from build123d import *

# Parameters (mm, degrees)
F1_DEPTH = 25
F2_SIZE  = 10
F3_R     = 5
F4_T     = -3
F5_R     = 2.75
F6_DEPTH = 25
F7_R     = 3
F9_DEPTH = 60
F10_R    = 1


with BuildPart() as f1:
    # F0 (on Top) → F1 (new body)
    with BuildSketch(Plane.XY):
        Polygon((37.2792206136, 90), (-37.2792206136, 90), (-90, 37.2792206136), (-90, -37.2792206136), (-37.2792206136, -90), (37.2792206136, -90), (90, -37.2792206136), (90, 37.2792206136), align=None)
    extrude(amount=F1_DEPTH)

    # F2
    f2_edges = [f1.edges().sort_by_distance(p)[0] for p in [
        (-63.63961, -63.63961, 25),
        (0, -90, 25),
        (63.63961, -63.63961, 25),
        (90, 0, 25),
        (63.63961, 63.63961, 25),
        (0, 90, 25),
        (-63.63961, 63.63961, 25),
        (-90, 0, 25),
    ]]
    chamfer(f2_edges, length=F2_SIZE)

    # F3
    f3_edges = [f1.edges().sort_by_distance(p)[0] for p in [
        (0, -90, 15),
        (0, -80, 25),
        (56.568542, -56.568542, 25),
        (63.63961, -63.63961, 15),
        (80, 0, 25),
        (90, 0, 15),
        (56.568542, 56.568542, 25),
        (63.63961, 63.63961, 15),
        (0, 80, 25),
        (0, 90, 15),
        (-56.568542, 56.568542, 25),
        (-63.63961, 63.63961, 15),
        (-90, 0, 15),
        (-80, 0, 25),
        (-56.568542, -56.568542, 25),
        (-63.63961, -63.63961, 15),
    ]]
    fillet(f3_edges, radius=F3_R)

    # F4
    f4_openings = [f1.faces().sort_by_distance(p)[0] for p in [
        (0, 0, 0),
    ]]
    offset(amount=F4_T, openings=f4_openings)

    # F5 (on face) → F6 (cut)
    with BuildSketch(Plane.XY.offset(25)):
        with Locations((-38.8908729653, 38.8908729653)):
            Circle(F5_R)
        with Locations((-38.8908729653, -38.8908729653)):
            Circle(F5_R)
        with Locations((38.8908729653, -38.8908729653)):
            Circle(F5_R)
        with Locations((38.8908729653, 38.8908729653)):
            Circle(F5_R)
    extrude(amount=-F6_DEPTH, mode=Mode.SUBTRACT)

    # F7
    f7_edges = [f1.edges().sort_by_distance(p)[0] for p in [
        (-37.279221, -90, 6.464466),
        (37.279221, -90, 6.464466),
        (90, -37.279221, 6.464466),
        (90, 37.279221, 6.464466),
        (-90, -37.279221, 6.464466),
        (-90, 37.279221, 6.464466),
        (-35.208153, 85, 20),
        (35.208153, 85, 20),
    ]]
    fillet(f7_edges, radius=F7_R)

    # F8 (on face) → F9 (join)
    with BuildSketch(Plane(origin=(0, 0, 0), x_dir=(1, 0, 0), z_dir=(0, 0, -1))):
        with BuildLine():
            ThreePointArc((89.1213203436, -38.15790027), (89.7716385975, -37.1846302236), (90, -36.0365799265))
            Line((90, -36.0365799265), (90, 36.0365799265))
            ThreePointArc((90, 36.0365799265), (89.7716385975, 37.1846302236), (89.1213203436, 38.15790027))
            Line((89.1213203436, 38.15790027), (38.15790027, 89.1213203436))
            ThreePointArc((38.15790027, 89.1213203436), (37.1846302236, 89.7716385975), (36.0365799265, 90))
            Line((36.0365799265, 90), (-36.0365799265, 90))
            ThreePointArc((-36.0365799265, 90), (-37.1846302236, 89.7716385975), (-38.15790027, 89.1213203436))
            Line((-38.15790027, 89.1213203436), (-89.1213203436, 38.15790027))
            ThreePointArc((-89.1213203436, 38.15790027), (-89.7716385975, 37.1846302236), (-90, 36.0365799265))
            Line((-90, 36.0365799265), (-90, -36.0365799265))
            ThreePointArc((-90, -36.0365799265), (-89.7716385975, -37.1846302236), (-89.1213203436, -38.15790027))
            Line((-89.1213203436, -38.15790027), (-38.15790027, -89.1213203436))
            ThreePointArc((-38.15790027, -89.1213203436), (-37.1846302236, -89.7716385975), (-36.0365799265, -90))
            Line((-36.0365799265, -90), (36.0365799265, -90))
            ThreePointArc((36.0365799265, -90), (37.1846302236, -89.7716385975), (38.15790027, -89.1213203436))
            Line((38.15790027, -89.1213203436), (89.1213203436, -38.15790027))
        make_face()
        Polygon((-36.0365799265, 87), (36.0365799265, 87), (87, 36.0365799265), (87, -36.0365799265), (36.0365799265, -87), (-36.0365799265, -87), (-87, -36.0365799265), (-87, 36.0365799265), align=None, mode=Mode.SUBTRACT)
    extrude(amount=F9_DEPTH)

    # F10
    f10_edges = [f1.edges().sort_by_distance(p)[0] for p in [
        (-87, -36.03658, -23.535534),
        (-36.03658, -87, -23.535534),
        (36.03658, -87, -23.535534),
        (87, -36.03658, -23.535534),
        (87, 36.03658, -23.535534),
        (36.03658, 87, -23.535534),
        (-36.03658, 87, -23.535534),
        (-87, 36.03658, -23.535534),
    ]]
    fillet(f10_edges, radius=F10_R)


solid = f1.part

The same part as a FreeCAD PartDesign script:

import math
import FreeCAD as App
import Part
import Sketcher
Q = App.Units.Quantity


def edges_at(feature, points):
    """Names of the edges that pass closest to the given points."""
    edges = feature.Shape.Edges
    near = lambda p: min(range(len(edges)), key=lambda i: edges[i].distToShape(Part.Vertex(*p))[0])
    return sorted({f"Edge{near(p) + 1}" for p in points})


def faces_at(feature, points):
    """Names of the faces that lie closest to the given points."""
    faces = feature.Shape.Faces
    near = lambda p: min(range(len(faces)), key=lambda i: faces[i].distToShape(Part.Vertex(*p))[0])
    return sorted({f"Face{near(p) + 1}" for p in points})

doc = App.newDocument("Part")
body = doc.addObject("PartDesign::Body", "Body")

# Sketch on XY plane
sketch1 = body.newObject("Sketcher::SketchObject", "Sketch")
sketch1.AttachmentSupport = (doc.getObject("XY_Plane"), [""])
sketch1.MapMode = "FlatFace"
sketch1.addGeometry([
    Part.LineSegment(App.Vector(37, 90, 0), App.Vector(-37, 90, 0)),  # 0
    Part.LineSegment(App.Vector(-37, 90, 0), App.Vector(-90, 37, 0)),  # 1
    Part.LineSegment(App.Vector(-90, 37, 0), App.Vector(-90, -37, 0)),  # 2
    Part.LineSegment(App.Vector(-90, -37, 0), App.Vector(-37, -90, 0)),  # 3
    Part.LineSegment(App.Vector(-37, -90, 0), App.Vector(37, -90, 0)),  # 4
    Part.LineSegment(App.Vector(37, -90, 0), App.Vector(90, -37, 0)),  # 5
    Part.LineSegment(App.Vector(90, -37, 0), App.Vector(90, 37, 0)),  # 6
    Part.LineSegment(App.Vector(90, 37, 0), App.Vector(37, 90, 0)),  # 7
], False)
sketch1.addConstraint([
    Sketcher.Constraint("Coincident", 0, 2, 1, 1),
    Sketcher.Constraint("Coincident", 1, 2, 2, 1),
    Sketcher.Constraint("Coincident", 2, 2, 3, 1),
    Sketcher.Constraint("Coincident", 3, 2, 4, 1),
    Sketcher.Constraint("Coincident", 4, 2, 5, 1),
    Sketcher.Constraint("Coincident", 5, 2, 6, 1),
    Sketcher.Constraint("Coincident", 6, 2, 7, 1),
    Sketcher.Constraint("Coincident", 7, 2, 0, 1),
    Sketcher.Constraint("Horizontal", 0),
    Sketcher.Constraint("Vertical", 2),
    Sketcher.Constraint("Horizontal", 4),
    Sketcher.Constraint("Vertical", 6),
    Sketcher.Constraint("Symmetric", 0, 2, 4, 2, -1, 1),
    Sketcher.Constraint("Symmetric", 1, 2, 5, 2, -1, 1),
    Sketcher.Constraint("Perpendicular", 1, 3),
    Sketcher.Constraint("Perpendicular", 5, 7),
    Sketcher.Constraint("Horizontal", 2, 2, 5, 2),
    Sketcher.Constraint("Horizontal", 1, 2, 6, 2),
    Sketcher.Constraint("Vertical", 0, 2, 3, 2),
    Sketcher.Constraint("Equal", 4, 2),
    Sketcher.Constraint("DistanceY", -1, 1, 0, 2, Q("90 mm")),
    Sketcher.Constraint("DistanceX", 0, 2, 0, 1, Q("74.558441 mm")),
])
pad1 = body.newObject("PartDesign::Pad", "Pad")
pad1.Profile = sketch1
pad1.Length = 25
doc.recompute()

chamfer = body.newObject("PartDesign::Chamfer", "Chamfer")
chamfer.Base = (pad1, edges_at(pad1, [
    (-63.64, -63.64, 25),
    (0, -90, 25),
    (63.64, -63.64, 25),
    (90, 0, 25),
    (63.64, 63.64, 25),
    (0, 90, 25),
    (-63.64, 63.64, 25),
    (-90, 0, 25),
]))
chamfer.Size = 10
doc.recompute()

fillet = body.newObject("PartDesign::Fillet", "Fillet")
fillet.Base = (chamfer, edges_at(chamfer, [
    (0, -90, 15),
    (0, -80, 25),
    (56.569, -56.569, 25),
    (63.64, -63.64, 15),
    (80, 0, 25),
    (90, 0, 15),
    (56.569, 56.569, 25),
    (63.64, 63.64, 15),
    (0, 80, 25),
    (0, 90, 15),
    (-56.569, 56.569, 25),
    (-63.64, 63.64, 15),
    (-90, 0, 15),
    (-80, 0, 25),
    (-56.569, -56.569, 25),
    (-63.64, -63.64, 15),
]))
fillet.Radius = 5
doc.recompute()

thickness = body.newObject("PartDesign::Thickness", "Thickness")
thickness.Base = (fillet, faces_at(fillet, [(0, 0, 0)]))
thickness.Value = 3
thickness.Reversed = True
thickness.Join = "Arc"

# Sketch on XY plane
sketch2 = body.newObject("Sketcher::SketchObject", "Sketch001")
sketch2.AttachmentSupport = (doc.getObject("XY_Plane"), [""])
sketch2.MapMode = "FlatFace"
sketch2.AttachmentOffset = App.Placement(App.Vector(0, 0, 25), App.Rotation())
sketch2.addGeometry([
    Part.Circle(App.Vector(-38.9, 38.9, 0), App.Vector(0, 0, 1), 2.8),
    Part.Circle(App.Vector(-38.9, -38.9, 0), App.Vector(0, 0, 1), 2.8),
    Part.Circle(App.Vector(38.9, -38.9, 0), App.Vector(0, 0, 1), 2.8),
    Part.Circle(App.Vector(38.9, 38.9, 0), App.Vector(0, 0, 1), 2.8),
], False)
sketch2.addConstraint([
    Sketcher.Constraint("Equal", 0, 1),
    Sketcher.Constraint("Equal", 1, 2),
    Sketcher.Constraint("Equal", 2, 3),
    Sketcher.Constraint("Symmetric", 0, 3, 2, 3, -1, 1),
    Sketcher.Constraint("Symmetric", 1, 3, 3, 3, -1, 1),
    Sketcher.Constraint("Symmetric", 1, 3, 2, 3, -2),
    Sketcher.Constraint("Diameter", 0, Q("5.5 mm")),
    Sketcher.Constraint("DistanceX", 0, 3, -1, 1, Q("38.890873 mm")),
    Sketcher.Constraint("DistanceY", -1, 1, 0, 3, Q("38.890873 mm")),
])
pocket1 = body.newObject("PartDesign::Pocket", "Pocket")
pocket1.Profile = sketch2
pocket1.Length = 25
doc.recompute()

fillet2 = body.newObject("PartDesign::Fillet", "Fillet001")
fillet2.Base = (pocket1, edges_at(pocket1, [
    (-37.279, -90, 6.464),
    (37.279, -90, 6.464),
    (90, -37.279, 6.464),
    (90, 37.279, 6.464),
    (-90, -37.279, 6.464),
    (-90, 37.279, 6.464),
    (-35.208, 85, 20),
    (35.208, 85, 20),
]))
fillet2.Radius = 3

# Sketch on XY plane
sketch3 = body.newObject("Sketcher::SketchObject", "Sketch002")
sketch3.AttachmentSupport = (doc.getObject("XY_Plane"), [""])
sketch3.MapMode = "FlatFace"
sketch3.addGeometry([
    Part.ArcOfCircle(Part.Circle(App.Vector(87, 36, 0), App.Vector(0, 0, 1), 3), math.radians(0), math.radians(45)),  # 0
    Part.LineSegment(App.Vector(90, 36, 0), App.Vector(90, -36, 0)),  # 1
    Part.ArcOfCircle(Part.Circle(App.Vector(87, -36, 0), App.Vector(0, 0, 1), 3), math.radians(-45), math.radians(0)),  # 2
    Part.LineSegment(App.Vector(89.1, -38.2, 0), App.Vector(38.2, -89.1, 0)),  # 3
    Part.ArcOfCircle(Part.Circle(App.Vector(36, -87, 0), App.Vector(0, 0, 1), 3), math.radians(-90), math.radians(-45)),  # 4
    Part.LineSegment(App.Vector(36, -90, 0), App.Vector(-36, -90, 0)),  # 5
    Part.ArcOfCircle(Part.Circle(App.Vector(-36, -87, 0), App.Vector(0, 0, 1), 3), math.radians(-135), math.radians(-90)),  # 6
    Part.LineSegment(App.Vector(-38.2, -89.1, 0), App.Vector(-89.1, -38.2, 0)),  # 7
    Part.ArcOfCircle(Part.Circle(App.Vector(-87, -36, 0), App.Vector(0, 0, 1), 3), math.radians(-180), math.radians(-135)),  # 8
    Part.LineSegment(App.Vector(-90, -36, 0), App.Vector(-90, 36, 0)),  # 9
    Part.ArcOfCircle(Part.Circle(App.Vector(-87, 36, 0), App.Vector(0, 0, 1), 3), math.radians(135), math.radians(180)),  # 10
    Part.LineSegment(App.Vector(-89.1, 38.2, 0), App.Vector(-38.2, 89.1, 0)),  # 11
    Part.ArcOfCircle(Part.Circle(App.Vector(-36, 87, 0), App.Vector(0, 0, 1), 3), math.radians(90), math.radians(135)),  # 12
    Part.LineSegment(App.Vector(-36, 90, 0), App.Vector(36, 90, 0)),  # 13
    Part.ArcOfCircle(Part.Circle(App.Vector(36, 87, 0), App.Vector(0, 0, 1), 3), math.radians(45), math.radians(90)),  # 14
    Part.LineSegment(App.Vector(38.2, 89.1, 0), App.Vector(89.1, 38.2, 0)),  # 15
    Part.LineSegment(App.Vector(-87, -36, 0), App.Vector(-36, -87, 0)),  # 16
    Part.LineSegment(App.Vector(-36, -87, 0), App.Vector(36, -87, 0)),  # 17
    Part.LineSegment(App.Vector(36, -87, 0), App.Vector(87, -36, 0)),  # 18
    Part.LineSegment(App.Vector(87, -36, 0), App.Vector(87, 36, 0)),  # 19
    Part.LineSegment(App.Vector(87, 36, 0), App.Vector(36, 87, 0)),  # 20
    Part.LineSegment(App.Vector(36, 87, 0), App.Vector(-36, 87, 0)),  # 21
    Part.LineSegment(App.Vector(-36, 87, 0), App.Vector(-87, 36, 0)),  # 22
    Part.LineSegment(App.Vector(-87, 36, 0), App.Vector(-87, -36, 0)),  # 23
], False)
sketch3.addConstraint([
    Sketcher.Constraint("Tangent", 0, 1, 1, 1),
    Sketcher.Constraint("Tangent", 1, 2, 2, 2),
    Sketcher.Constraint("Tangent", 2, 1, 3, 1),
    Sketcher.Constraint("Tangent", 3, 2, 4, 2),
    Sketcher.Constraint("Tangent", 4, 1, 5, 1),
    Sketcher.Constraint("Tangent", 5, 2, 6, 2),
    Sketcher.Constraint("Tangent", 6, 1, 7, 1),
    Sketcher.Constraint("Tangent", 7, 2, 8, 2),
    Sketcher.Constraint("Tangent", 8, 1, 9, 1),
    Sketcher.Constraint("Tangent", 9, 2, 10, 2),
    Sketcher.Constraint("Tangent", 10, 1, 11, 1),
    Sketcher.Constraint("Tangent", 11, 2, 12, 2),
    Sketcher.Constraint("Tangent", 12, 1, 13, 1),
    Sketcher.Constraint("Tangent", 13, 2, 14, 2),
    Sketcher.Constraint("Tangent", 14, 1, 15, 1),
    Sketcher.Constraint("Tangent", 15, 2, 0, 2),
    Sketcher.Constraint("Coincident", 16, 2, 17, 1),
    Sketcher.Constraint("Coincident", 17, 2, 18, 1),
    Sketcher.Constraint("Coincident", 18, 2, 19, 1),
    Sketcher.Constraint("Coincident", 19, 2, 20, 1),
    Sketcher.Constraint("Coincident", 20, 2, 21, 1),
    Sketcher.Constraint("Coincident", 21, 2, 22, 1),
    Sketcher.Constraint("Coincident", 22, 2, 23, 1),
    Sketcher.Constraint("Coincident", 23, 2, 16, 1),
    Sketcher.Constraint("Vertical", 1),
    Sketcher.Constraint("Horizontal", 5),
    Sketcher.Constraint("Vertical", 9),
    Sketcher.Constraint("Horizontal", 13),
    Sketcher.Constraint("Horizontal", 17),
    Sketcher.Constraint("Vertical", 19),
    Sketcher.Constraint("Horizontal", 21),
    Sketcher.Constraint("Vertical", 23),
    Sketcher.Constraint("Coincident", 16, 2, 6, 3),
    Sketcher.Constraint("Coincident", 17, 2, 4, 3),
    Sketcher.Constraint("Coincident", 18, 2, 2, 3),
    Sketcher.Constraint("Coincident", 19, 2, 0, 3),
    Sketcher.Constraint("Coincident", 20, 2, 14, 3),
    Sketcher.Constraint("Coincident", 21, 2, 12, 3),
    Sketcher.Constraint("Coincident", 22, 2, 10, 3),
    Sketcher.Constraint("Coincident", 23, 2, 8, 3),
    Sketcher.Constraint("Equal", 2, 4),
    Sketcher.Constraint("Equal", 6, 8),
    Sketcher.Constraint("Equal", 10, 12),
    Sketcher.Constraint("Symmetric", 0, 3, 8, 3, -1, 1),
    Sketcher.Constraint("Symmetric", 4, 3, 12, 3, -1, 1),
    Sketcher.Constraint("Symmetric", 3, 2, 6, 1, -2),
    Sketcher.Constraint("Symmetric", 11, 2, 14, 1, -2),
    Sketcher.Constraint("Perpendicular", 3, 7),
    Sketcher.Constraint("Equal", 21, 1),
    Sketcher.Constraint("Radius", 0, Q("3 mm")),
    Sketcher.Constraint("DistanceX", -1, 1, 0, 3, Q("87 mm")),
    Sketcher.Constraint("DistanceX", 5, 2, 5, 1, Q("72.07316 mm")),
])
pad2 = body.newObject("PartDesign::Pad", "Pad001")
pad2.Profile = sketch3
pad2.Length = 60
pad2.Reversed = True
doc.recompute()

fillet3 = body.newObject("PartDesign::Fillet", "Fillet002")
fillet3.Base = (pad2, edges_at(pad2, [
    (-87, -36.037, -23.536),
    (-36.037, -87, -23.536),
    (36.037, -87, -23.536),
    (87, -36.037, -23.536),
    (87, 36.037, -23.536),
    (36.037, 87, -23.536),
    (-36.037, 87, -23.536),
    (-87, 36.037, -23.536),
]))
fillet3.Radius = 1

doc.recompute()
